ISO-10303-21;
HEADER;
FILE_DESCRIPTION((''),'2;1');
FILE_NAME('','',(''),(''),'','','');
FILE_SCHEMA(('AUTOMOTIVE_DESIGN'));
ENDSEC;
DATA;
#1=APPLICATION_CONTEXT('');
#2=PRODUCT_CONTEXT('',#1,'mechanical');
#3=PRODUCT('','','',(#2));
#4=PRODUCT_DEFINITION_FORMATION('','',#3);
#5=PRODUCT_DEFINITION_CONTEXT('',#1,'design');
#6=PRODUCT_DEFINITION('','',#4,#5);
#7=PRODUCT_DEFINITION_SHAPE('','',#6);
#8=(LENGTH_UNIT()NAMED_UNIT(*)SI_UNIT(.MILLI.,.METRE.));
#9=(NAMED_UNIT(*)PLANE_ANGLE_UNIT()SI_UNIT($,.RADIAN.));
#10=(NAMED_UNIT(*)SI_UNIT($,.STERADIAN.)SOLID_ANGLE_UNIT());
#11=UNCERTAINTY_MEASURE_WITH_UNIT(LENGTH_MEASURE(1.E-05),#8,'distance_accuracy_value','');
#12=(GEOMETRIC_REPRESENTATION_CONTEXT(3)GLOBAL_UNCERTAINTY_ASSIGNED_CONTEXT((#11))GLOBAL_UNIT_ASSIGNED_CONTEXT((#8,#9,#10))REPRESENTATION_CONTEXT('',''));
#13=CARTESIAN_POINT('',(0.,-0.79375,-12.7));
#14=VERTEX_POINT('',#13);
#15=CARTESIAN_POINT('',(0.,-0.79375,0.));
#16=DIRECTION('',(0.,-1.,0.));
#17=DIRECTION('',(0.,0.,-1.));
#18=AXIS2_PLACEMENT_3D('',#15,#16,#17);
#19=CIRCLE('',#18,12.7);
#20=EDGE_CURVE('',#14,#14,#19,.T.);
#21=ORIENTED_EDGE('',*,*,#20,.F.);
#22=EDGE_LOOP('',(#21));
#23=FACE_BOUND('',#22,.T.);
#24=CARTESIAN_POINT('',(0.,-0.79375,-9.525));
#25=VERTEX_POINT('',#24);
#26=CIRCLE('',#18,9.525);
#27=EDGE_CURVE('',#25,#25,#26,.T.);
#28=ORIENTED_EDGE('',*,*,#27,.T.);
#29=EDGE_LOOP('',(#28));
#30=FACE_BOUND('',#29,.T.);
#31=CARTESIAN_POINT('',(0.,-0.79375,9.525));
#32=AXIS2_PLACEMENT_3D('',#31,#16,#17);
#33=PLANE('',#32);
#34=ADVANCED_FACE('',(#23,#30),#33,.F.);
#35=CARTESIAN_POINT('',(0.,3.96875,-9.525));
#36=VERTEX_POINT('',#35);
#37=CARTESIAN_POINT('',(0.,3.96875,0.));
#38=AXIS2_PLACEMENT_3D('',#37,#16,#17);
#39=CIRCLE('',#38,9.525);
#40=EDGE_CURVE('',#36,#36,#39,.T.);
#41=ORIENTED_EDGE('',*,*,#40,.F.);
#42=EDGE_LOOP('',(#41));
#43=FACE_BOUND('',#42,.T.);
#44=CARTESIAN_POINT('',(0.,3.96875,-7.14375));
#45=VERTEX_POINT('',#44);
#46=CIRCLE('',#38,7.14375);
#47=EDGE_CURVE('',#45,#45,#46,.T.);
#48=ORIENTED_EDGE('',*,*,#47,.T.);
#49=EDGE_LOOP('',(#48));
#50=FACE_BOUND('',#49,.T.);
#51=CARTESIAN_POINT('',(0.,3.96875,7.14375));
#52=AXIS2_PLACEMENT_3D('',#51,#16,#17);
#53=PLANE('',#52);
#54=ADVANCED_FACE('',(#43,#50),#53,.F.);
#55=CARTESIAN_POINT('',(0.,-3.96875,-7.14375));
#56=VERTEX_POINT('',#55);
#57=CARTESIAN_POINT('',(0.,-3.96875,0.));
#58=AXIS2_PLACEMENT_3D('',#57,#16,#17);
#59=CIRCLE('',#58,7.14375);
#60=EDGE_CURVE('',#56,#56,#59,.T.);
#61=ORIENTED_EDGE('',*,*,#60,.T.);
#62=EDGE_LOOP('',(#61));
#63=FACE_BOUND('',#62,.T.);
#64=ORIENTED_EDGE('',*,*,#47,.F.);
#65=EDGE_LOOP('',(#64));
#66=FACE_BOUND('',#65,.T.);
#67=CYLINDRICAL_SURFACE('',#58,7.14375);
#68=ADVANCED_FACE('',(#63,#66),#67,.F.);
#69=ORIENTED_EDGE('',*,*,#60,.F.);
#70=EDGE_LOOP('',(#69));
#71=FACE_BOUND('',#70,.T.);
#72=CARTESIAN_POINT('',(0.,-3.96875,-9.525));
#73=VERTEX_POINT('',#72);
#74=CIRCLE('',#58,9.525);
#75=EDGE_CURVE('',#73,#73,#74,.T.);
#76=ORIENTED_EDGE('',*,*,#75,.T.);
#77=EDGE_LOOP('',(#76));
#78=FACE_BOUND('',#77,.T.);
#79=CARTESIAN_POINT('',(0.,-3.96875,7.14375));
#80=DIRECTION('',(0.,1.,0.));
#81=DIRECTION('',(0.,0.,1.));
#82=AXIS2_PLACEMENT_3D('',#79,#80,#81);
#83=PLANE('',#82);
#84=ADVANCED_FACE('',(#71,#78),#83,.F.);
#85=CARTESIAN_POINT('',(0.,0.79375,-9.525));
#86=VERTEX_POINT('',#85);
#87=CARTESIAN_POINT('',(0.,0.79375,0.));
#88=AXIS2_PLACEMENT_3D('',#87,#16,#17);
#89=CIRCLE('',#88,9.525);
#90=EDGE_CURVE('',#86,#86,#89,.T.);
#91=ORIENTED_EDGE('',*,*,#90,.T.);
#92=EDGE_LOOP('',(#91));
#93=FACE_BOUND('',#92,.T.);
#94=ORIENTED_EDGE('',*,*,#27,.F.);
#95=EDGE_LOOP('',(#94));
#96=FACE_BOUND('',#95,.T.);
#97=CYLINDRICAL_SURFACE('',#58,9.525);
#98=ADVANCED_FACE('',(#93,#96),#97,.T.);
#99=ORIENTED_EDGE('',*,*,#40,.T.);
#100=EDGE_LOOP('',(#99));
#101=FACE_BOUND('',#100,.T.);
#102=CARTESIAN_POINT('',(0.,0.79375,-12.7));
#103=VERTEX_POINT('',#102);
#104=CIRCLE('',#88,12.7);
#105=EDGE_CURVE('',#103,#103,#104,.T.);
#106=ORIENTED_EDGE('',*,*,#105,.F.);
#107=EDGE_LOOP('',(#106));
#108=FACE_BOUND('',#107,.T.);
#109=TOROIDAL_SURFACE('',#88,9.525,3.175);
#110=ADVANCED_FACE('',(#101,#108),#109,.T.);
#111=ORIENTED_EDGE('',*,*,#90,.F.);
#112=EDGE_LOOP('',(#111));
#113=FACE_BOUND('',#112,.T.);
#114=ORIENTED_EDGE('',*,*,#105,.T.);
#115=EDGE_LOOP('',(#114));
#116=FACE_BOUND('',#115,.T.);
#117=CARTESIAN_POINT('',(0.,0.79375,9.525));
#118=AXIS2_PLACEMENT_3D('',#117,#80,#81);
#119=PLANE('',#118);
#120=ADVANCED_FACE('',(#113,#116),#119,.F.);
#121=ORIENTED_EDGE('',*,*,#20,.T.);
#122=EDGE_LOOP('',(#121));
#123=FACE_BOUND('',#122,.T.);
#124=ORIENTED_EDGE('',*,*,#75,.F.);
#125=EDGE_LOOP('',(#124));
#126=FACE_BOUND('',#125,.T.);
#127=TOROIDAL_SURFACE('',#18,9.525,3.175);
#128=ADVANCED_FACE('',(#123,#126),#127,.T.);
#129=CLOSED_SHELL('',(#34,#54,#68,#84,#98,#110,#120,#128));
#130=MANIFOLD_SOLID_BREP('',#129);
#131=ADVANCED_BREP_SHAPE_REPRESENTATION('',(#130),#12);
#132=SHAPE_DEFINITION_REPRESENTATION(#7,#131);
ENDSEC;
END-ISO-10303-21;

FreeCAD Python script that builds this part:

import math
import FreeCAD as App
import Part
import Sketcher

V = App.Vector
Q = App.Units.Quantity

doc = App.newDocument("Part")
body = doc.addObject("PartDesign::Body", "Body")

sketch1 = doc.addObject("Sketcher::SketchObject", "Sketch")
body.addObject(sketch1)
sketch1.AttachmentSupport = (doc.YZ_Plane, [""])
sketch1.MapMode = "FlatFace"
sketch1.addGeometry([
    Part.LineSegment(V(-4, 7.1, 0), V(4, 7.1, 0)),
    Part.LineSegment(V(4, 7.1, 0), V(4, 9.5, 0)),
    Part.ArcOfCircle(Part.Circle(V(0.8, 9.5, 0), V(0, 0, 1), 3.2), math.radians(0), math.radians(90)),
    Part.LineSegment(V(0.8, 12.7, 0), V(0.8, 9.5, 0)),
    Part.LineSegment(V(0.8, 9.5, 0), V(-0.8, 9.5, 0)),
    Part.LineSegment(V(-0.8, 9.5, 0), V(-0.8, 12.7, 0)),
    Part.ArcOfCircle(Part.Circle(V(-0.8, 9.5, 0), V(0, 0, 1), 3.2), math.radians(90), math.radians(180)),
    Part.LineSegment(V(-4, 9.5, 0), V(-4, 7.1, 0)),
], False)
sketch1.addConstraint([
    Sketcher.Constraint("Coincident", 0, 2, 1, 1),
    Sketcher.Constraint("Tangent", 1, 2, 2, 1),
    Sketcher.Constraint("Coincident", 2, 2, 3, 1),
    Sketcher.Constraint("Coincident", 3, 2, 4, 1),
    Sketcher.Constraint("Coincident", 4, 2, 5, 1),
    Sketcher.Constraint("Coincident", 5, 2, 6, 1),
    Sketcher.Constraint("Tangent", 6, 2, 7, 1),
    Sketcher.Constraint("Coincident", 7, 2, 0, 1),
    Sketcher.Constraint("Horizontal", 0),
    Sketcher.Constraint("Vertical", 1),
    Sketcher.Constraint("Vertical", 3),
    Sketcher.Constraint("Horizontal", 4),
    Sketcher.Constraint("Vertical", 5),
    Sketcher.Constraint("Vertical", 7),
    Sketcher.Constraint("Coincident", 3, 2, 2, 3),
    Sketcher.Constraint("Coincident", 4, 2, 6, 3),
    Sketcher.Constraint("Equal", 2, 6),
    Sketcher.Constraint("Radius", 2, Q("0.125 in")),
    Sketcher.Constraint("DistanceY", -1, 1, 2, 2, Q("0.5 in")),
    Sketcher.Constraint("DistanceX", 0, 1, 0, 2, Q("0.3125 in")),
    Sketcher.Constraint("DistanceY", 1, 1, 1, 2, Q("0.09375 in")),
    Sketcher.Constraint("DistanceX", -1, 1, 2, 3, Q("0.03125 in")),
])
revolution = doc.addObject("PartDesign::Revolution", "Revolution")
body.addObject(revolution)
revolution.Profile = sketch1
revolution.ReferenceAxis = (sketch1, ["H_Axis"])
revolution.Angle = 360

doc.recompute()
